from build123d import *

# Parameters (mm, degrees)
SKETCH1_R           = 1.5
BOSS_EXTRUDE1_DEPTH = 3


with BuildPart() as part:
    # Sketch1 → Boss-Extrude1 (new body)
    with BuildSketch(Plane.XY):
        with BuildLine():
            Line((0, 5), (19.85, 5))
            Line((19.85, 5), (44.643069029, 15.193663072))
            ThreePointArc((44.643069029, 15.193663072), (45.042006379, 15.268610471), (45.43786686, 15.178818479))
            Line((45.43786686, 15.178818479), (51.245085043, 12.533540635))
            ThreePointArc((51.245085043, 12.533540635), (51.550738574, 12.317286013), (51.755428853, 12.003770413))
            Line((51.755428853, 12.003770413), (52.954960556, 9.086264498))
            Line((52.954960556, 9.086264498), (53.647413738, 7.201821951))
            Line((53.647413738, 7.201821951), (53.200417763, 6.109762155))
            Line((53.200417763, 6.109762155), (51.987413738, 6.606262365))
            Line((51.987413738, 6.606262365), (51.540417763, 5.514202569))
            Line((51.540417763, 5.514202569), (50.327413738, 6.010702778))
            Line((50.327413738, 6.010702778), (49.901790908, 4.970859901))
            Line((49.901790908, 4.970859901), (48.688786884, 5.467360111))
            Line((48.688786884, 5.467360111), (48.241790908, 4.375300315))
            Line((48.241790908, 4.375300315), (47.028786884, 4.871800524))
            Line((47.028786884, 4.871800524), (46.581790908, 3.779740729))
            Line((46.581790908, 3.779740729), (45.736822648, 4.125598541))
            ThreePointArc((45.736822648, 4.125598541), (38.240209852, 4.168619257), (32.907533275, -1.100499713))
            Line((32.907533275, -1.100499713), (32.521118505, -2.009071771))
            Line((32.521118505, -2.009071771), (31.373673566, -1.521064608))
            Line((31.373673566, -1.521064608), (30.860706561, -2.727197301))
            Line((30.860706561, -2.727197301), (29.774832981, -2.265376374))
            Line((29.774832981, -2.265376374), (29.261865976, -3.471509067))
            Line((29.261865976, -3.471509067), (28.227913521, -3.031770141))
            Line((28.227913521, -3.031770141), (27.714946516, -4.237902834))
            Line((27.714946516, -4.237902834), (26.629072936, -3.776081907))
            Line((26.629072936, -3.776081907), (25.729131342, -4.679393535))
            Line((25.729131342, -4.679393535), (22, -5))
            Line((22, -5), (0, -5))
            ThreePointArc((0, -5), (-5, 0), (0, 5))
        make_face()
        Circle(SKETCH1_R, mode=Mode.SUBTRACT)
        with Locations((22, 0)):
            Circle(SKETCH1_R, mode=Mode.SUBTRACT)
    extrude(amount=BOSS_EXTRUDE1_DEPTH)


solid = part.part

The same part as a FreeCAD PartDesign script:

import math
import FreeCAD as App
import Part
import Sketcher
Q = App.Units.Quantity

doc = App.newDocument("Part")
body = doc.addObject("PartDesign::Body", "Body")

# Sketch on XY plane
sketch1 = doc.addObject("Sketcher::SketchObject", "Sketch")
body.addObject(sketch1)
sketch1.AttachmentSupport = (doc.XY_Plane, [""])
sketch1.MapMode = "FlatFace"
sketch1.addGeometry(Part.LineSegment(App.Vector(19.9, 5, 0), App.Vector(0, 5, 0)), False)
sketch1.addGeometry(Part.ArcOfCircle(Part.Circle(App.Vector(0, 0, 0), App.Vector(0, 0, 1), 5), math.radians(90), math.radians(270)), False)
sketch1.addGeometry(Part.LineSegment(App.Vector(0, -5, 0), App.Vector(22, -5, 0)), False)
sketch1.addGeometry(Part.LineSegment(App.Vector(22, -5, 0), App.Vector(25.7, -4.7, 0)), False)
sketch1.addGeometry(Part.LineSegment(App.Vector(25.7, -4.7, 0), App.Vector(26.6, -3.8, 0)), False)
sketch1.addGeometry(Part.LineSegment(App.Vector(26.6, -3.8, 0), App.Vector(27.7, -4.2, 0)), False)
sketch1.addGeometry(Part.LineSegment(App.Vector(27.7, -4.2, 0), App.Vector(28.2, -3, 0)), False)
sketch1.addGeometry(Part.LineSegment(App.Vector(28.2, -3, 0), App.Vector(29.3, -3.5, 0)), False)
sketch1.addGeometry(Part.LineSegment(App.Vector(29.3, -3.5, 0), App.Vector(29.8, -2.3, 0)), False)
sketch1.addGeometry(Part.LineSegment(App.Vector(29.8, -2.3, 0), App.Vector(30.9, -2.7, 0)), False)
sketch1.addGeometry(Part.LineSegment(App.Vector(30.9, -2.7, 0), App.Vector(31.4, -1.5, 0)), False)
sketch1.addGeometry(Part.LineSegment(App.Vector(31.4, -1.5, 0), App.Vector(32.5, -2, 0)), False)
sketch1.addGeometry(Part.LineSegment(App.Vector(32.5, -2, 0), App.Vector(32.9, -1.1, 0)), False)
sketch1.addGeometry(Part.ArcOfCircle(Part.Circle(App.Vector(41.9, -4.9, 0), App.Vector(0, 0, 1), 9.8), math.radians(67), math.radians(157)), False)
sketch1.addGeometry(Part.LineSegment(App.Vector(45.7, 4.1, 0), App.Vector(46.6, 3.8, 0)), False)
sketch1.addGeometry(Part.LineSegment(App.Vector(46.6, 3.8, 0), App.Vector(47, 4.9, 0)), False)
sketch1.addGeometry(Part.LineSegment(App.Vector(47, 4.9, 0), App.Vector(48.2, 4.4, 0)), False)
sketch1.addGeometry(Part.LineSegment(App.Vector(48.2, 4.4, 0), App.Vector(48.7, 5.5, 0)), False)
sketch1.addGeometry(Part.LineSegment(App.Vector(48.7, 5.5, 0), App.Vector(49.9, 5, 0)), False)
sketch1.addGeometry(Part.LineSegment(App.Vector(49.9, 5, 0), App.Vector(50.3, 6, 0)), False)
sketch1.addGeometry(Part.LineSegment(App.Vector(50.3, 6, 0), App.Vector(51.5, 5.5, 0)), False)
sketch1.addGeometry(Part.LineSegment(App.Vector(51.5, 5.5, 0), App.Vector(52, 6.6, 0)), False)
sketch1.addGeometry(Part.LineSegment(App.Vector(52, 6.6, 0), App.Vector(53.2, 6.1, 0)), False)
sketch1.addGeometry(Part.LineSegment(App.Vector(53.2, 6.1, 0), App.Vector(53.6, 7.2, 0)), False)
sketch1.addGeometry(Part.LineSegment(App.Vector(53.6, 7.2, 0), App.Vector(53, 9.1, 0)), False)
sketch1.addGeometry(Part.LineSegment(App.Vector(53, 9.1, 0), App.Vector(51.8, 12, 0)), False)
sketch1.addGeometry(Part.ArcOfCircle(Part.Circle(App.Vector(50.8, 11.6, 0), App.Vector(0, 0, 1), 1), math.radians(22), math.radians(66)), False)
sketch1.addGeometry(Part.LineSegment(App.Vector(51.2, 12.5, 0), App.Vector(45.4, 15.2, 0)), False)
sketch1.addGeometry(Part.ArcOfCircle(Part.Circle(App.Vector(45, 14.3, 0), App.Vector(0, 0, 1), 1), math.radians(66), math.radians(112)), False)
sketch1.addGeometry(Part.LineSegment(App.Vector(44.6, 15.2, 0), App.Vector(19.9, 5, 0)), False)
sketch1.addGeometry(Part.Circle(App.Vector(22, 0, 0), App.Vector(0, 0, 1), 1.5), False)
sketch1.addGeometry(Part.Circle(App.Vector(0, 0, 0), App.Vector(0, 0, 1), 1.5), False)
sketch1.addConstraint(Sketcher.Constraint("Tangent", 0, 2, 1, 1))
sketch1.addConstraint(Sketcher.Constraint("Tangent", 1, 2, 2, 1))
sketch1.addConstraint(Sketcher.Constraint("Coincident", 2, 2, 3, 1))
sketch1.addConstraint(Sketcher.Constraint("Coincident", 3, 2, 4, 1))
sketch1.addConstraint(Sketcher.Constraint("Coincident", 4, 2, 5, 1))
sketch1.addConstraint(Sketcher.Constraint("Coincident", 5, 2, 6, 1))
sketch1.addConstraint(Sketcher.Constraint("Coincident", 6, 2, 7, 1))
sketch1.addConstraint(Sketcher.Constraint("Coincident", 7, 2, 8, 1))
sketch1.addConstraint(Sketcher.Constraint("Coincident", 8, 2, 9, 1))
sketch1.addConstraint(Sketcher.Constraint("Coincident", 9, 2, 10, 1))
sketch1.addConstraint(Sketcher.Constraint("Coincident", 10, 2, 11, 1))
sketch1.addConstraint(Sketcher.Constraint("Coincident", 11, 2, 12, 1))
sketch1.addConstraint(Sketcher.Constraint("Coincident", 12, 2, 13, 2))
sketch1.addConstraint(Sketcher.Constraint("Coincident", 13, 1, 14, 1))
sketch1.addConstraint(Sketcher.Constraint("Coincident", 14, 2, 15, 1))
sketch1.addConstraint(Sketcher.Constraint("Coincident", 15, 2, 16, 1))
sketch1.addConstraint(Sketcher.Constraint("Coincident", 16, 2, 17, 1))
sketch1.addConstraint(Sketcher.Constraint("Coincident", 17, 2, 18, 1))
sketch1.addConstraint(Sketcher.Constraint("Coincident", 18, 2, 19, 1))
sketch1.addConstraint(Sketcher.Constraint("Coincident", 19, 2, 20, 1))
sketch1.addConstraint(Sketcher.Constraint("Coincident", 20, 2, 21, 1))
sketch1.addConstraint(Sketcher.Constraint("Coincident", 21, 2, 22, 1))
sketch1.addConstraint(Sketcher.Constraint("Coincident", 22, 2, 23, 1))
sketch1.addConstraint(Sketcher.Constraint("Coincident", 23, 2, 24, 1))
sketch1.addConstraint(Sketcher.Constraint("Coincident", 24, 2, 25, 1))
sketch1.addConstraint(Sketcher.Constraint("Tangent", 25, 2, 26, 1))
sketch1.addConstraint(Sketcher.Constraint("Tangent", 26, 2, 27, 1))
sketch1.addConstraint(Sketcher.Constraint("Tangent", 27, 2, 28, 1))
sketch1.addConstraint(Sketcher.Constraint("Tangent", 28, 2, 29, 1))
sketch1.addConstraint(Sketcher.Constraint("Coincident", 29, 2, 0, 1))
sketch1.addConstraint(Sketcher.Constraint("Horizontal", 0))
sketch1.addConstraint(Sketcher.Constraint("Horizontal", 2))
sketch1.addConstraint(Sketcher.Constraint("Coincident", 1, 3, -1, 1))
sketch1.addConstraint(Sketcher.Constraint("Coincident", 31, 3, -1, 1))
sketch1.addConstraint(Sketcher.Constraint("Equal", 26, 28))
sketch1.addConstraint(Sketcher.Constraint("Equal", 30, 31))
sketch1.addConstraint(Sketcher.Constraint("PointOnObject", 30, 3, -1))
sketch1.addConstraint(Sketcher.Constraint("Perpendicular", 5, 6))
sketch1.addConstraint(Sketcher.Constraint("Perpendicular", 6, 7))
sketch1.addConstraint(Sketcher.Constraint("Perpendicular", 7, 8))
sketch1.addConstraint(Sketcher.Constraint("Perpendicular", 8, 9))
sketch1.addConstraint(Sketcher.Constraint("Perpendicular", 9, 10))
sketch1.addConstraint(Sketcher.Constraint("Perpendicular", 10, 11))
sketch1.addConstraint(Sketcher.Constraint("Perpendicular", 11, 12))
sketch1.addConstraint(Sketcher.Constraint("Perpendicular", 14, 15))
sketch1.addConstraint(Sketcher.Constraint("Perpendicular", 15, 16))
sketch1.addConstraint(Sketcher.Constraint("Perpendicular", 16, 17))
sketch1.addConstraint(Sketcher.Constraint("Perpendicular", 17, 18))
sketch1.addConstraint(Sketcher.Constraint("Perpendicular", 18, 19))
sketch1.addConstraint(Sketcher.Constraint("Perpendicular", 19, 20))
sketch1.addConstraint(Sketcher.Constraint("Perpendicular", 20, 21))
sketch1.addConstraint(Sketcher.Constraint("Perpendicular", 21, 22))
sketch1.addConstraint(Sketcher.Constraint("Perpendicular", 22, 23))
sketch1.addConstraint(Sketcher.Constraint("Perpendicular", 25, 29))
sketch1.addConstraint(Sketcher.Constraint("Vertical", 30, 3, 2, 2))
sketch1.addConstraint(Sketcher.Constraint("Equal", 6, 8))
sketch1.addConstraint(Sketcher.Constraint("Equal", 5, 9))
sketch1.addConstraint(Sketcher.Constraint("Equal", 8, 10))
sketch1.addConstraint(Sketcher.Constraint("Equal", 9, 15))
sketch1.addConstraint(Sketcher.Constraint("Equal", 10, 16))
sketch1.addConstraint(Sketcher.Constraint("Equal", 15, 17))
sketch1.addConstraint(Sketcher.Constraint("Equal", 16, 18))
sketch1.addConstraint(Sketcher.Constraint("Equal", 7, 19))
sketch1.addConstraint(Sketcher.Constraint("Equal", 18, 20))
sketch1.addConstraint(Sketcher.Constraint("Equal", 17, 21))
sketch1.addConstraint(Sketcher.Constraint("Equal", 20, 22))
sketch1.addConstraint(Sketcher.Constraint("Equal", 21, 23))
sketch1.addConstraint(Sketcher.Constraint("Diameter", 30, 3.0))
sketch1.addConstraint(Sketcher.Constraint("Radius", 1, 5.0))
sketch1.addConstraint(Sketcher.Constraint("Radius", 26, 1.0))
sketch1.addConstraint(Sketcher.Constraint("DistanceX", 2, 1, 2, 2, 22.0))
sketch1.addConstraint(Sketcher.Constraint("DistanceX", 0, 2, 0, 1, 19.85))
sketch1.addConstraint(Sketcher.Constraint("Angle", 5, Q("-23.04 deg")))
sketch1.addConstraint(Sketcher.Constraint("Angle", 14, Q("-22.26 deg")))
sketch1.addConstraint(Sketcher.Constraint("Angle", 25, Q("112.35 deg")))
sketch1.addConstraint(Sketcher.Constraint("Angle", 27, Q("155.51 deg")))
sketch1.addConstraint(Sketcher.Constraint("Distance", 5, 1.18))
sketch1.addConstraint(Sketcher.Constraint("Radius", 13, 9.797989))
sketch1.addConstraint(Sketcher.Constraint("DistanceX", 14, 2, 16, 2, 1.66))
sketch1.addConstraint(Sketcher.Constraint("DistanceY", 12, 2, -1, 1, 1.1005))
sketch1.addConstraint(Sketcher.Constraint("DistanceY", -1, 1, 13, 1, 4.125599))
sketch1.addConstraint(Sketcher.Constraint("DistanceY", -1, 1, 15, 2, 4.871801))
sketch1.addConstraint(Sketcher.Constraint("DistanceX", 3, 2, 8, 2, 4.045702))
sketch1.addConstraint(Sketcher.Constraint("DistanceY", 6, 2, 11, 2, 1.022698))
sketch1.addConstraint(Sketcher.Constraint("DistanceX", 8, 2, 12, 2, 3.1327))
sketch1.addConstraint(Sketcher.Constraint("Distance", 7, 1.123578))
sketch1.addConstraint(Sketcher.Constraint("Distance", 24, 2.007639))
sketch1.addConstraint(Sketcher.Constraint("DistanceX", -1, 1, 26, 3, 50.830551))
sketch1.addConstraint(Sketcher.Constraint("DistanceX", -1, 1, 3, 2, 25.729131))
sketch1.addConstraint(Sketcher.Constraint("DistanceX", -1, 1, 14, 2, 46.581791))
sketch1.addConstraint(Sketcher.Constraint("DistanceX", -1, 1, 24, 2, 52.954961))
sketch1.addConstraint(Sketcher.Constraint("DistanceY", 13, 3, 3, 2, 0.225991))
pad1 = doc.addObject("PartDesign::Pad", "Pad")
body.addObject(pad1)
pad1.Profile = sketch1
pad1.Length = 3

doc.recompute()
